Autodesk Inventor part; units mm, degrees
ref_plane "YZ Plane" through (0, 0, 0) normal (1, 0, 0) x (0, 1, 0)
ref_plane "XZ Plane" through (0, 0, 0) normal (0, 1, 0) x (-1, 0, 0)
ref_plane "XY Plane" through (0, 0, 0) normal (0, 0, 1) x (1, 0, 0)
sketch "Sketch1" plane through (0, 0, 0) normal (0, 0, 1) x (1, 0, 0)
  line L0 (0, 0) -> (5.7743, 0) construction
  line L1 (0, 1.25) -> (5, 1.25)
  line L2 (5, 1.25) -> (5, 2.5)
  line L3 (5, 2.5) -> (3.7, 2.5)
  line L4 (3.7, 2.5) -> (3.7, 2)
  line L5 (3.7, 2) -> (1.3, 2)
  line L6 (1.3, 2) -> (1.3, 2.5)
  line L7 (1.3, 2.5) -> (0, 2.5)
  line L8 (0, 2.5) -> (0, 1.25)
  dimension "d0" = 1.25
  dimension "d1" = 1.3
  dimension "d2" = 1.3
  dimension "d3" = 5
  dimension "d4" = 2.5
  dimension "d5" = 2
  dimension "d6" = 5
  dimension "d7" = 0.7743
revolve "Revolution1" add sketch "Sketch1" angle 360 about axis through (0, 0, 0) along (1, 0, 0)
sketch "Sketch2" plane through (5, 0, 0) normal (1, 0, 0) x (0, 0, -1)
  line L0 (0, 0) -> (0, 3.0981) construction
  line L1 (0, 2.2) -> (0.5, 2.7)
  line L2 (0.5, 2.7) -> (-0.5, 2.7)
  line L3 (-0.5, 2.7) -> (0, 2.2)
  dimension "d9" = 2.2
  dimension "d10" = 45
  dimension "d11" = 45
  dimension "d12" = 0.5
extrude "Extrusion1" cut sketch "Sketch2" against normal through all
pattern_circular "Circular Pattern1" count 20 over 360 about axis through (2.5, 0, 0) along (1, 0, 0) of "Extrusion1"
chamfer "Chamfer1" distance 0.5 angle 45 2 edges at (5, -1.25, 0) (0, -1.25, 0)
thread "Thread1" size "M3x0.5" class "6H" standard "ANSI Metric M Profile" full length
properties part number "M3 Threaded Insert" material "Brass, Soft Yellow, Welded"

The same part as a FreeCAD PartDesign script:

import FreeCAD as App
import Part
import Sketcher
Q = App.Units.Quantity


def edges_at(feature, points):
    """Names of the edges that pass closest to the given points."""
    edges = feature.Shape.Edges
    near = lambda p: min(range(len(edges)), key=lambda i: edges[i].distToShape(Part.Vertex(*p))[0])
    return sorted({f"Edge{near(p) + 1}" for p in points})


def add_polygon(sketch, points):
    """Adds a closed chain of lines whose ends are joined by coincident constraints."""
    first, n = sketch.GeometryCount, len(points)
    for a, b in zip(points, points[1:] + points[:1]):
        sketch.addGeometry(Part.LineSegment(App.Vector(*a, 0), App.Vector(*b, 0)), False)
    for i in range(n):
        sketch.addConstraint(Sketcher.Constraint("Coincident", first + i, 2, first + (i + 1) % n, 1))

doc = App.newDocument("Part")
body = doc.addObject("PartDesign::Body", "Body")

# Sketch on XY plane
sketch1 = body.newObject("Sketcher::SketchObject", "Sketch")
sketch1.AttachmentSupport = (doc.getObject("XY_Plane"), [""])
sketch1.MapMode = "FlatFace"
add_polygon(sketch1, [(0, 2.5), (0, 1.2), (5, 1.2), (5, 2.5), (3.7, 2.5), (3.7, 2), (1.3, 2), (1.3, 2.5)])  # lines 0-7
sketch1.addConstraint([
    Sketcher.Constraint("Vertical", 0),
    Sketcher.Constraint("Horizontal", 1),
    Sketcher.Constraint("Vertical", 2),
    Sketcher.Constraint("Horizontal", 3),
    Sketcher.Constraint("Vertical", 4),
    Sketcher.Constraint("Horizontal", 5),
    Sketcher.Constraint("Vertical", 6),
    Sketcher.Constraint("Horizontal", 7),
    Sketcher.Constraint("PointOnObject", 0, 2, -2),
    Sketcher.Constraint("Horizontal", 3, 2, 6, 2),
    Sketcher.Constraint("Equal", 3, 7),
    Sketcher.Constraint("DistanceX", 1, 1, 1, 2, Q("5 mm")),
    Sketcher.Constraint("DistanceX", 3, 2, 3, 1, Q("1.3 mm")),
    Sketcher.Constraint("DistanceY", -1, 1, 4, 2, Q("2 mm")),
    Sketcher.Constraint("DistanceY", 0, 2, 0, 1, Q("1.25 mm")),
    Sketcher.Constraint("DistanceY", -1, 1, 2, 2, Q("2.5 mm")),
])
revolution = body.newObject("PartDesign::Revolution", "Revolution")
revolution.Profile = sketch1
revolution.ReferenceAxis = (sketch1, ["H_Axis"])
revolution.Angle = 360

# Sketch on YZ plane
sketch2 = body.newObject("Sketcher::SketchObject", "Sketch001")
sketch2.AttachmentSupport = (doc.getObject("YZ_Plane"), [""])
sketch2.MapMode = "FlatFace"
sketch2.AttachmentOffset = App.Placement(App.Vector(0, 0, 5), App.Rotation())
add_polygon(sketch2, [(2.7, 0.5), (2.2, 0), (2.7, -0.5)])  # lines 0-2
sketch2.addConstraint([
    Sketcher.Constraint("Vertical", 2),
    Sketcher.Constraint("PointOnObject", 0, 2, -1),
    Sketcher.Constraint("Perpendicular", 0, 1),
    Sketcher.Constraint("Equal", 0, 1),
    Sketcher.Constraint("DistanceX", -1, 1, 0, 2, Q("2.2 mm")),
    Sketcher.Constraint("DistanceY", 1, 2, -1, 1, Q("0.5 mm")),
])
pocket1 = body.newObject("PartDesign::Pocket", "Pocket")
pocket1.Profile = sketch2
pocket1.Type = "ThroughAll"
doc.recompute()

polarpattern = body.newObject("PartDesign::PolarPattern", "PolarPattern")
polarpattern.Originals = [pocket1]
polarpattern.Axis = (doc.getObject("X_Axis"), [""])
polarpattern.Angle = 360
polarpattern.Occurrences = 20
body.Tip = polarpattern
doc.recompute()

chamfer = body.newObject("PartDesign::Chamfer", "Chamfer")
chamfer.Base = (polarpattern, edges_at(polarpattern, [(5, -1.25, 0), (0, -1.25, 0)]))
chamfer.Size = 0.5

doc.recompute()
